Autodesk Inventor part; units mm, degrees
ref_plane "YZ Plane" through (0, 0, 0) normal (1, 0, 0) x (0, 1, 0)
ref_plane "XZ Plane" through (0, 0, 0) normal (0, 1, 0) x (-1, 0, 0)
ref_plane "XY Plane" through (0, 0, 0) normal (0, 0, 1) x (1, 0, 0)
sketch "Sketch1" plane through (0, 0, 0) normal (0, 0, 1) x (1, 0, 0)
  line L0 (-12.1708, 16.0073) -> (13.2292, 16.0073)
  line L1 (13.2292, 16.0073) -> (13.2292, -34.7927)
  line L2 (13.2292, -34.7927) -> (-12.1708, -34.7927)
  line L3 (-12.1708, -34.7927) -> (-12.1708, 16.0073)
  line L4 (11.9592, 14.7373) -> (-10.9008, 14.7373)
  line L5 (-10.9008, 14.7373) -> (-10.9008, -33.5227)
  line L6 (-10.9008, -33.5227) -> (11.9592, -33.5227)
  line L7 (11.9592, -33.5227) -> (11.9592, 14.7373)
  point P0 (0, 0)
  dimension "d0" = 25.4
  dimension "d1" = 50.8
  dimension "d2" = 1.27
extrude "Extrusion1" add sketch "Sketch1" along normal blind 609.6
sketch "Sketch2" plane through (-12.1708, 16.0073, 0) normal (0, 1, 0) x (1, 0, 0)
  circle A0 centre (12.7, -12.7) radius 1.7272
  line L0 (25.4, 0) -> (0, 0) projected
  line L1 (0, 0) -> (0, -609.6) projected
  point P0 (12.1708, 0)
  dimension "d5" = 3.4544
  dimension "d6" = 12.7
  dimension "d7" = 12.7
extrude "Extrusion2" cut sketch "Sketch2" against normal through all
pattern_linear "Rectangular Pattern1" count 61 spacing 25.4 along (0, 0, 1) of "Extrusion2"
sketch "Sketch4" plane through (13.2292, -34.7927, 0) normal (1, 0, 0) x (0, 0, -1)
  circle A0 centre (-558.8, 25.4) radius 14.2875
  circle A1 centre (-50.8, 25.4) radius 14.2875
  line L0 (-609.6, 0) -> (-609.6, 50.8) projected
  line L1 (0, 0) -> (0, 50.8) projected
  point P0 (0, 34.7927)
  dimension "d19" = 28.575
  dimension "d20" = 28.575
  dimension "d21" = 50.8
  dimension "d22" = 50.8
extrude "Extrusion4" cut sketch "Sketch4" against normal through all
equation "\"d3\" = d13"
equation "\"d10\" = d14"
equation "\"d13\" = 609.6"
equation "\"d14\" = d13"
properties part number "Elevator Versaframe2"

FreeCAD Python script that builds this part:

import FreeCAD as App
import Part
import Sketcher

V = App.Vector
Q = App.Units.Quantity


def add_polygon(sketch, points):
    """Adds a closed chain of lines whose ends are joined by coincident constraints."""
    first, n = sketch.GeometryCount, len(points)
    for a, b in zip(points, points[1:] + points[:1]):
        sketch.addGeometry(Part.LineSegment(App.Vector(*a, 0), App.Vector(*b, 0)), False)
    for i in range(n):
        sketch.addConstraint(Sketcher.Constraint("Coincident", first + i, 2, first + (i + 1) % n, 1))

doc = App.newDocument("Part")
params = doc.addObject("Spreadsheet::Sheet", "Params")
for row, (alias, value) in enumerate([
    ("sketch1_width", "1 in"),
    ("sketch1_height", "2 in"),
    ("pad1_length", "24 in"),
    ("sketch2_diameter", "0.136 in"),
    ("linearpattern_pitch", "1 in"),
    ("sketch3_diameter", "1.125 in"),
], start=1):
    params.set(f"A{row}", alias)
    params.set(f"B{row}", "=" + value)
    params.setAlias(f"B{row}", alias)

body = doc.addObject("PartDesign::Body", "Body")

sketch1 = body.newObject("Sketcher::SketchObject", "Sketch")
sketch1.AttachmentSupport = (doc.getObject("XY_Plane"), [""])
sketch1.MapMode = "FlatFace"
add_polygon(sketch1, [(13, 16), (-12, 16), (-12, -35), (13, -35)])
add_polygon(sketch1, [(-11, 15), (12, 15), (12, -34), (-11, -34)])
sketch1.addConstraint([
    Sketcher.Constraint("Horizontal", 0),
    Sketcher.Constraint("Vertical", 1),
    Sketcher.Constraint("Horizontal", 2),
    Sketcher.Constraint("Vertical", 3),
    Sketcher.Constraint("Horizontal", 4),
    Sketcher.Constraint("Vertical", 5),
    Sketcher.Constraint("Horizontal", 6),
    Sketcher.Constraint("Vertical", 7),
    Sketcher.Constraint("DistanceX", 0, 2, 0, 1, Q("1 in")),
    Sketcher.Constraint("DistanceY", 1, 2, 1, 1, Q("2 in")),
    Sketcher.Constraint("DistanceX", 4, 2, 3, 2, Q("0.05 in")),
    Sketcher.Constraint("DistanceY", 4, 2, 3, 2, Q("0.05 in")),
    Sketcher.Constraint("DistanceY", 2, 2, 5, 2, Q("0.05 in")),
    Sketcher.Constraint("DistanceX", 1, 2, 6, 2, Q("0.05 in")),
    Sketcher.Constraint("DistanceY", -1, 1, 0, 2, Q("0.6302 in")),
    Sketcher.Constraint("DistanceX", 0, 2, -1, 1, Q("12.1708 mm")),
])
sketch1.setExpression("Constraints[16]", "Params.sketch1_width")
sketch1.setExpression("Constraints[17]", "Params.sketch1_height")
pad1 = body.newObject("PartDesign::Pad", "Pad")
pad1.Profile = sketch1
pad1.setExpression("Length", "Params.pad1_length")

sketch2 = body.newObject("Sketcher::SketchObject", "Sketch001")
sketch2.AttachmentSupport = (doc.getObject("XZ_Plane"), [""])
sketch2.MapMode = "FlatFace"
sketch2.AttachmentOffset = App.Placement(V(0, 0, -0.6302087 * 25.4), App.Rotation())
sketch2.addGeometry(Part.Circle(V(0.5, 12.7, 0), V(0, 0, 1), 1.7), False)
sketch2.addConstraint([
    Sketcher.Constraint("Diameter", 0, Q("0.136 in")),
    Sketcher.Constraint("DistanceY", -1, 1, 0, 3, Q("0.5 in")),
    Sketcher.Constraint("DistanceX", -1, 1, 0, 3, Q("0.5292 mm")),
])
sketch2.setExpression("Constraints[0]", "Params.sketch2_diameter")
pocket1 = body.newObject("PartDesign::Pocket", "Pocket")
pocket1.Profile = sketch2
pocket1.Type = "ThroughAll"
pocket1.Reversed = True
doc.recompute()

linearpattern = body.newObject("PartDesign::LinearPattern", "LinearPattern")
linearpattern.Originals = [pocket1]
linearpattern.Direction = (doc.getObject("Z_Axis"), [""])
linearpattern.Mode = "offset"
linearpattern.setExpression("Offset", "Params.linearpattern_pitch")
linearpattern.Occurrences = 61
body.Tip = linearpattern

sketch3 = body.newObject("Sketcher::SketchObject", "Sketch002")
sketch3.AttachmentSupport = (doc.getObject("YZ_Plane"), [""])
sketch3.MapMode = "FlatFace"
sketch3.AttachmentOffset = App.Placement(V(0, 0, 13.2292), App.Rotation())
sketch3.addGeometry([
    Part.Circle(V(-9, 559, 0), V(0, 0, 1), 14),
    Part.Circle(V(-9, 51, 0), V(0, 0, 1), 14),
], False)
sketch3.addConstraint([
    Sketcher.Constraint("Equal", 0, 1),
    Sketcher.Constraint("Vertical", 0, 3, 1, 3),
    Sketcher.Constraint("Diameter", 0, Q("1.125 in")),
    Sketcher.Constraint("DistanceY", -1, 1, 1, 3, Q("2 in")),
    Sketcher.Constraint("DistanceY", -1, 1, 0, 3, Q("22 in")),
    Sketcher.Constraint("DistanceX", 0, 3, -1, 1, Q("0.3698 in")),
])
sketch3.setExpression("Constraints[2]", "Params.sketch3_diameter")
pocket2 = body.newObject("PartDesign::Pocket", "Pocket001")
pocket2.Profile = sketch3
pocket2.Type = "ThroughAll"

doc.recompute()
